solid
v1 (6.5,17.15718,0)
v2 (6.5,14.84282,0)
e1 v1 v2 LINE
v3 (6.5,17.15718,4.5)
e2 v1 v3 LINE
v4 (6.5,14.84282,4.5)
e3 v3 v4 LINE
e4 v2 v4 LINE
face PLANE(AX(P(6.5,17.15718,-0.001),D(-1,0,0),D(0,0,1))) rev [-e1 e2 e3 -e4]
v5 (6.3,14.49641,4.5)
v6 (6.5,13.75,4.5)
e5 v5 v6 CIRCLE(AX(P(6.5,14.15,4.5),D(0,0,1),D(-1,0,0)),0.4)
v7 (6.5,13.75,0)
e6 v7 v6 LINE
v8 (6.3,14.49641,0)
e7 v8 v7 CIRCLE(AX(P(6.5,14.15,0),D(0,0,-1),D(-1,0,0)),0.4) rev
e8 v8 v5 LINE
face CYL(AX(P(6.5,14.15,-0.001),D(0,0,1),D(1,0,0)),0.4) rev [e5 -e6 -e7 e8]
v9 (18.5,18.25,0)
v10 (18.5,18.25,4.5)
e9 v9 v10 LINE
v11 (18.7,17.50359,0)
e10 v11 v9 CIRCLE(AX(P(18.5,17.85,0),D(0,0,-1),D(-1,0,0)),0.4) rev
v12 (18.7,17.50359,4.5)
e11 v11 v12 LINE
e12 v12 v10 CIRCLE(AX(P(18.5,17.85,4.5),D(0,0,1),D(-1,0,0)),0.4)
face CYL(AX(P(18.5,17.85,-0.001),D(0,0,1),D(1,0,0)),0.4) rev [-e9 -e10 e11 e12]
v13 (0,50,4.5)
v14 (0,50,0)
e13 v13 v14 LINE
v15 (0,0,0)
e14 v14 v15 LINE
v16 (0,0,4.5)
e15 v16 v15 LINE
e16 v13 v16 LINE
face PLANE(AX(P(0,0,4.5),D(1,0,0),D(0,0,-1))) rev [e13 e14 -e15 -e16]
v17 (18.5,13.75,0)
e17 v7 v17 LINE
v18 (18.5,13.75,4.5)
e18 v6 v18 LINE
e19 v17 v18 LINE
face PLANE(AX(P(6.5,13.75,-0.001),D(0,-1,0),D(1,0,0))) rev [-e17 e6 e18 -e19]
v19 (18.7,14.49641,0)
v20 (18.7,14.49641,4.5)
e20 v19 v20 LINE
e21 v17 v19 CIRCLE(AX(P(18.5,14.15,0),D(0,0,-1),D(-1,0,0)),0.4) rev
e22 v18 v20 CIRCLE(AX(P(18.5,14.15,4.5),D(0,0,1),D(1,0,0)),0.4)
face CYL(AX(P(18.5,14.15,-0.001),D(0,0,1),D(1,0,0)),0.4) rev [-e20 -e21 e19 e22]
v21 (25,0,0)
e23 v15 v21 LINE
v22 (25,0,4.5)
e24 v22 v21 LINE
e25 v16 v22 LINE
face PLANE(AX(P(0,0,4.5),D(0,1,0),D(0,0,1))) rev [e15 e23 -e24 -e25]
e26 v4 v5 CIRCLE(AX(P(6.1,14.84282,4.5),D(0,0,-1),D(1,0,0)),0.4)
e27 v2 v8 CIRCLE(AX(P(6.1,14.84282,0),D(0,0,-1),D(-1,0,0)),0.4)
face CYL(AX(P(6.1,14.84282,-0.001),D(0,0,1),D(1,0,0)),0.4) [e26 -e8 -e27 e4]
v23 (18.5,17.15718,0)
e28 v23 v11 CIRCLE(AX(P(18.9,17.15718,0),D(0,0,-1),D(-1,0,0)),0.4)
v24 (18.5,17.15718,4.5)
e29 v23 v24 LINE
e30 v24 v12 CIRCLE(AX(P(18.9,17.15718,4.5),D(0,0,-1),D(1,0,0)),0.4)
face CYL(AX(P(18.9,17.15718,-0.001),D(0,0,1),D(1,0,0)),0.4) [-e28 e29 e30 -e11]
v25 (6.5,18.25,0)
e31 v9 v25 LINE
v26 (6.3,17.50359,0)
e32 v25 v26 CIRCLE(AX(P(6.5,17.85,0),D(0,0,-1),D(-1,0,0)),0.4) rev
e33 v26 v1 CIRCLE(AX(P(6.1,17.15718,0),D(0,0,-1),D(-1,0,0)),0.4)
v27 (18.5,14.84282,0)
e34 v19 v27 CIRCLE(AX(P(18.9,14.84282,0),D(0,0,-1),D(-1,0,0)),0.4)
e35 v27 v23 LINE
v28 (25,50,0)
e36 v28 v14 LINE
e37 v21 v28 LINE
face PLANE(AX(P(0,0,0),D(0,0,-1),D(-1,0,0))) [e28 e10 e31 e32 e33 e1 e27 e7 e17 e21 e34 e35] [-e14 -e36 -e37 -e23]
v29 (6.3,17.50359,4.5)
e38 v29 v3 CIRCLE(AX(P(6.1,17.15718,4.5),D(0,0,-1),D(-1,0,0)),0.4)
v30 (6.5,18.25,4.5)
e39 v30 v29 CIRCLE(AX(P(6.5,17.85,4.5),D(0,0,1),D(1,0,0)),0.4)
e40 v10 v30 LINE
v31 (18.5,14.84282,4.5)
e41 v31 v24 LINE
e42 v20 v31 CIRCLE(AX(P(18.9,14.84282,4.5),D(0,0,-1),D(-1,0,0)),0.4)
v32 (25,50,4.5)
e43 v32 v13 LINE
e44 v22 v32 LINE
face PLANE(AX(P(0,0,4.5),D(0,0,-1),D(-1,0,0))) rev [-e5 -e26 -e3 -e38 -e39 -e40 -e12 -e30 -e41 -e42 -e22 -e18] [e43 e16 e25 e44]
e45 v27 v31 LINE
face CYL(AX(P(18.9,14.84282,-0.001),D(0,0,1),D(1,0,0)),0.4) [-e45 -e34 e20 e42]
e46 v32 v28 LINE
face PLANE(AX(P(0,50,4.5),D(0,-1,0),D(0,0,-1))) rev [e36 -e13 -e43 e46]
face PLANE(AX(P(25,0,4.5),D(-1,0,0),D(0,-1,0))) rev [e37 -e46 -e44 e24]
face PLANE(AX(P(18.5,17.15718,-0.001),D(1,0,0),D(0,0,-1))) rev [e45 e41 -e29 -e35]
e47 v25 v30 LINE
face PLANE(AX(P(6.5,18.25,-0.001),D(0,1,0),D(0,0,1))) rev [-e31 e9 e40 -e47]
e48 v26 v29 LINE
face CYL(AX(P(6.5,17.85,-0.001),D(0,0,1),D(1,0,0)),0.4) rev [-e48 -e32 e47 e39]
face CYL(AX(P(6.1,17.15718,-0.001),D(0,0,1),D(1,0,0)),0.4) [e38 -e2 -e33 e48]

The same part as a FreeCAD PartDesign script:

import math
import FreeCAD as App
import Part
import Sketcher
Q = App.Units.Quantity


def add_polygon(sketch, points):
    """Adds a closed chain of lines whose ends are joined by coincident constraints."""
    first, n = sketch.GeometryCount, len(points)
    for a, b in zip(points, points[1:] + points[:1]):
        sketch.addGeometry(Part.LineSegment(App.Vector(*a, 0), App.Vector(*b, 0)), False)
    for i in range(n):
        sketch.addConstraint(Sketcher.Constraint("Coincident", first + i, 2, first + (i + 1) % n, 1))

doc = App.newDocument("Part")
body = doc.addObject("PartDesign::Body", "Body")

# Sketch on XY plane
sketch1 = body.newObject("Sketcher::SketchObject", "Sketch")
sketch1.AttachmentSupport = (doc.getObject("XY_Plane"), [""])
sketch1.MapMode = "FlatFace"
add_polygon(sketch1, [(0, 50), (0, 0), (25, 0), (25, 50)])  # lines 0-3
sketch1.addConstraint(Sketcher.Constraint("Vertical", 0))
sketch1.addConstraint(Sketcher.Constraint("Horizontal", 1))
sketch1.addConstraint(Sketcher.Constraint("Vertical", 2))
sketch1.addConstraint(Sketcher.Constraint("Horizontal", 3))
sketch1.addConstraint(Sketcher.Constraint("Coincident", 0, 2, -1, 1))
sketch1.addConstraint(Sketcher.Constraint("DistanceX", 1, 1, 1, 2, Q("25 mm")))
sketch1.addConstraint(Sketcher.Constraint("DistanceY", 0, 2, 0, 1, Q("50 mm")))
pad1 = body.newObject("PartDesign::Pad", "Pad")
pad1.Profile = sketch1
pad1.Length = 4.5

# Sketch on XY plane
sketch2 = body.newObject("Sketcher::SketchObject", "Sketch001")
sketch2.AttachmentSupport = (doc.getObject("XY_Plane"), [""])
sketch2.MapMode = "FlatFace"
sketch2.AttachmentOffset = App.Placement(App.Vector(0, 0, 4.5), App.Rotation())
sketch2.addGeometry(Part.LineSegment(App.Vector(18.5, 18.25, 0), App.Vector(6.5, 18.25, 0)), False)
sketch2.addGeometry(Part.ArcOfCircle(Part.Circle(App.Vector(6.5, 17.85, 0), App.Vector(0, 0, 1), 0.4), math.radians(90), math.radians(240)), False)
sketch2.addGeometry(Part.ArcOfCircle(Part.Circle(App.Vector(6.1, 17.16, 0), App.Vector(0, 0, 1), 0.4), math.radians(0), math.radians(60)), False)
sketch2.addGeometry(Part.LineSegment(App.Vector(6.5, 17.16, 0), App.Vector(6.5, 14.84, 0)), False)
sketch2.addGeometry(Part.ArcOfCircle(Part.Circle(App.Vector(6.1, 14.84, 0), App.Vector(0, 0, 1), 0.4), math.radians(-60), math.radians(0)), False)
sketch2.addGeometry(Part.ArcOfCircle(Part.Circle(App.Vector(6.5, 14.15, 0), App.Vector(0, 0, 1), 0.4), math.radians(120), math.radians(270)), False)
sketch2.addGeometry(Part.LineSegment(App.Vector(6.5, 13.75, 0), App.Vector(18.5, 13.75, 0)), False)
sketch2.addGeometry(Part.ArcOfCircle(Part.Circle(App.Vector(18.5, 14.15, 0), App.Vector(0, 0, 1), 0.4), math.radians(-90), math.radians(60)), False)
sketch2.addGeometry(Part.ArcOfCircle(Part.Circle(App.Vector(18.9, 14.84, 0), App.Vector(0, 0, 1), 0.4), math.radians(180), math.radians(240)), False)
sketch2.addGeometry(Part.LineSegment(App.Vector(18.5, 14.84, 0), App.Vector(18.5, 17.16, 0)), False)
sketch2.addGeometry(Part.ArcOfCircle(Part.Circle(App.Vector(18.9, 17.16, 0), App.Vector(0, 0, 1), 0.4), math.radians(120), math.radians(180)), False)
sketch2.addGeometry(Part.ArcOfCircle(Part.Circle(App.Vector(18.5, 17.85, 0), App.Vector(0, 0, 1), 0.4), math.radians(-60), math.radians(90)), False)
sketch2.addConstraint(Sketcher.Constraint("Tangent", 0, 2, 1, 1))
sketch2.addConstraint(Sketcher.Constraint("Tangent", 1, 2, 2, 2))
sketch2.addConstraint(Sketcher.Constraint("Tangent", 2, 1, 3, 1))
sketch2.addConstraint(Sketcher.Constraint("Tangent", 3, 2, 4, 2))
sketch2.addConstraint(Sketcher.Constraint("Tangent", 4, 1, 5, 1))
sketch2.addConstraint(Sketcher.Constraint("Tangent", 5, 2, 6, 1))
sketch2.addConstraint(Sketcher.Constraint("Tangent", 6, 2, 7, 1))
sketch2.addConstraint(Sketcher.Constraint("Tangent", 7, 2, 8, 2))
sketch2.addConstraint(Sketcher.Constraint("Tangent", 8, 1, 9, 1))
sketch2.addConstraint(Sketcher.Constraint("Tangent", 9, 2, 10, 2))
sketch2.addConstraint(Sketcher.Constraint("Tangent", 10, 1, 11, 1))
sketch2.addConstraint(Sketcher.Constraint("Tangent", 11, 2, 0, 1))
sketch2.addConstraint(Sketcher.Constraint("Horizontal", 0))
sketch2.addConstraint(Sketcher.Constraint("Vertical", 3))
sketch2.addConstraint(Sketcher.Constraint("Horizontal", 6))
sketch2.addConstraint(Sketcher.Constraint("Vertical", 9))
sketch2.addConstraint(Sketcher.Constraint("Equal", 1, 2))
sketch2.addConstraint(Sketcher.Constraint("Equal", 2, 4))
sketch2.addConstraint(Sketcher.Constraint("Equal", 4, 5))
sketch2.addConstraint(Sketcher.Constraint("Equal", 5, 7))
sketch2.addConstraint(Sketcher.Constraint("Equal", 7, 8))
sketch2.addConstraint(Sketcher.Constraint("Equal", 8, 10))
sketch2.addConstraint(Sketcher.Constraint("Equal", 10, 11))
sketch2.addConstraint(Sketcher.Constraint("Horizontal", 4, 3, 8, 3))
sketch2.addConstraint(Sketcher.Constraint("Horizontal", 2, 3, 10, 3))
sketch2.addConstraint(Sketcher.Constraint("Vertical", 1, 3, 5, 3))
sketch2.addConstraint(Sketcher.Constraint("Vertical", 0, 2, 2, 1))
sketch2.addConstraint(Sketcher.Constraint("Radius", 1, Q("0.4 mm")))
sketch2.addConstraint(Sketcher.Constraint("DistanceX", 0, 2, 0, 1, Q("12 mm")))
sketch2.addConstraint(Sketcher.Constraint("DistanceX", -1, 1, 1, 3, Q("6.5 mm")))
sketch2.addConstraint(Sketcher.Constraint("DistanceY", 5, 3, 1, 3, Q("3.7 mm")))
sketch2.addConstraint(Sketcher.Constraint("DistanceY", -1, 1, 1, 3, Q("17.85 mm")))
pocket1 = body.newObject("PartDesign::Pocket", "Pocket")
pocket1.Profile = sketch2
pocket1.Type = "UpToFirst"

doc.recompute()
